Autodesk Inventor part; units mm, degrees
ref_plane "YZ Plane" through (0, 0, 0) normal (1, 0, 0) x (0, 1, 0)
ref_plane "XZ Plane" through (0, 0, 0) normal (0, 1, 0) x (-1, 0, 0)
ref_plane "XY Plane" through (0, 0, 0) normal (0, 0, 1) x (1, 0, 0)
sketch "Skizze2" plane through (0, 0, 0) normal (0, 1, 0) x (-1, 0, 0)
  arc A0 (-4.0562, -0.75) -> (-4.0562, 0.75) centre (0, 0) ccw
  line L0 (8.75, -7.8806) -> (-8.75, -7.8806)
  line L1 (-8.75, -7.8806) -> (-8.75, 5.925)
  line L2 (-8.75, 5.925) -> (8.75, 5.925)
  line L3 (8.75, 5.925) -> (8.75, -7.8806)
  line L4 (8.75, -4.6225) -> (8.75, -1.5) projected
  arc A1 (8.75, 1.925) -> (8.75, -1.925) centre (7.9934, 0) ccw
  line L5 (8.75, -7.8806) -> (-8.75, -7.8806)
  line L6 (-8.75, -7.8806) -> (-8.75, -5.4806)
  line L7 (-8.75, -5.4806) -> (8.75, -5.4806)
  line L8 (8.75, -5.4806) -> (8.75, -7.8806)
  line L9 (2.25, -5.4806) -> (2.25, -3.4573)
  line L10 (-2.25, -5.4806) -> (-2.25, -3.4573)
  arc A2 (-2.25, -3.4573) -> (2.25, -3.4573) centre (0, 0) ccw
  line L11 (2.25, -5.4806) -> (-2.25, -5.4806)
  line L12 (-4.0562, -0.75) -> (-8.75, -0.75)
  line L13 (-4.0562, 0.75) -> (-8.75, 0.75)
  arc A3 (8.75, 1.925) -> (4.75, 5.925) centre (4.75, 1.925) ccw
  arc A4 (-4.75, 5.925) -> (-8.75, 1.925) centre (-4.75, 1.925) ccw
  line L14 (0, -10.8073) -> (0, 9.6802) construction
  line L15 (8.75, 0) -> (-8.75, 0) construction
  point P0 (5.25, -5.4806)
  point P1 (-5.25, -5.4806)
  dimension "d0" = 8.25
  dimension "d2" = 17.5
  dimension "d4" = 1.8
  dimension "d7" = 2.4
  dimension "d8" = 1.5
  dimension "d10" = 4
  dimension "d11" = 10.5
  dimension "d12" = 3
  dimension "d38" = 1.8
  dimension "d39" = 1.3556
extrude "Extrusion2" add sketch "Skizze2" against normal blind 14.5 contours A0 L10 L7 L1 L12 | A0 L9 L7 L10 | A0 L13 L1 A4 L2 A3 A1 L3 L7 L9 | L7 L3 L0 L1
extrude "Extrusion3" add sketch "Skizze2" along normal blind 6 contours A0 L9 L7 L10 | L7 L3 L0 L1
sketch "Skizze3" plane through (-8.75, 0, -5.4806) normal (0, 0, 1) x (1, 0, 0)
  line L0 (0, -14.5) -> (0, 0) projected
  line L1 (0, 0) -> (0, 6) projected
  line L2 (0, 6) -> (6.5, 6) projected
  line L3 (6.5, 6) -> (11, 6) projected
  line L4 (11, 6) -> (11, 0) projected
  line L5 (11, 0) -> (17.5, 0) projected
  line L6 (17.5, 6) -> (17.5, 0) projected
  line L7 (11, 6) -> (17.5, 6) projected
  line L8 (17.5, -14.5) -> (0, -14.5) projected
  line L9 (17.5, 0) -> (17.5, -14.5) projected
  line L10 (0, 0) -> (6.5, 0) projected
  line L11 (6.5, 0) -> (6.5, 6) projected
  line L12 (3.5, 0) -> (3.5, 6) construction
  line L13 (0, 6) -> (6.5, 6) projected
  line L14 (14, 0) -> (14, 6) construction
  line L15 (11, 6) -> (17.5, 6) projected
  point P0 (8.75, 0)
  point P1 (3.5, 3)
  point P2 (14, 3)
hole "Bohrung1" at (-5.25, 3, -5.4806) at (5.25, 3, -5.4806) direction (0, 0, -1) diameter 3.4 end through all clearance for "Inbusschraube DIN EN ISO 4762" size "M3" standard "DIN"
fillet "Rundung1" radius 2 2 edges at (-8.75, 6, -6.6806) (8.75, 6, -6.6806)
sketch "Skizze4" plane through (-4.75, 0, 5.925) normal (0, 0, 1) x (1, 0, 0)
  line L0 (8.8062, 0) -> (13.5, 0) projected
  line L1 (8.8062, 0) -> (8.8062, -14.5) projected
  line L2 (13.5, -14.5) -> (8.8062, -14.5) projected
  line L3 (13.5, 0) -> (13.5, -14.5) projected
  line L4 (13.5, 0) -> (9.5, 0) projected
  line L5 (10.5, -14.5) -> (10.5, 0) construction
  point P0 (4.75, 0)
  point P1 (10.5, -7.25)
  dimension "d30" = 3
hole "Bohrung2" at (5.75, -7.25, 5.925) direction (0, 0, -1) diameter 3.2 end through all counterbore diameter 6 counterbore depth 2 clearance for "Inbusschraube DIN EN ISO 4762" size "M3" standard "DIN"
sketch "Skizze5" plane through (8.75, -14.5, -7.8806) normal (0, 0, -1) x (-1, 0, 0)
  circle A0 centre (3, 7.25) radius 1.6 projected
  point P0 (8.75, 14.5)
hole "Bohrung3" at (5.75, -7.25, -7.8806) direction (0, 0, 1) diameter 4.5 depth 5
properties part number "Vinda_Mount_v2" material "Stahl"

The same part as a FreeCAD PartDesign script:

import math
import FreeCAD as App
import Part
import Sketcher

V = App.Vector
Q = App.Units.Quantity


def edges_at(feature, points):
    """Names of the edges that pass closest to the given points."""
    edges = feature.Shape.Edges
    near = lambda p: min(range(len(edges)), key=lambda i: edges[i].distToShape(Part.Vertex(*p))[0])
    return sorted({f"Edge{near(p) + 1}" for p in points})

doc = App.newDocument("Part")
body = doc.addObject("PartDesign::Body", "Body")

# Sketch on XZ plane
sketch1 = doc.addObject("Sketcher::SketchObject", "Sketch")
body.addObject(sketch1)
sketch1.AttachmentSupport = (doc.XZ_Plane, [""])
sketch1.MapMode = "FlatFace"
sketch1.addGeometry(Part.LineSegment(V(4.1, -0.8, 0), V(8.8, -0.8, 0)), False)
sketch1.addGeometry(Part.LineSegment(V(8.8, -0.8, 0), V(8.8, -7.9, 0)), False)
sketch1.addGeometry(Part.LineSegment(V(8.8, -7.9, 0), V(-8.8, -7.9, 0)), False)
sketch1.addGeometry(Part.LineSegment(V(-8.8, -7.9, 0), V(-8.8, -1.9, 0)), False)
sketch1.addGeometry(Part.ArcOfCircle(Part.Circle(V(-8, 0, 0), V(0, 0, 1), 2.1), math.radians(-111), math.radians(111)), False)
sketch1.addGeometry(Part.ArcOfCircle(Part.Circle(V(-4.8, 1.9, 0), V(0, 0, 1), 4), math.radians(90), math.radians(180)), False)
sketch1.addGeometry(Part.LineSegment(V(-4.8, 5.9, 0), V(4.8, 5.9, 0)), False)
sketch1.addGeometry(Part.ArcOfCircle(Part.Circle(V(4.8, 1.9, 0), V(0, 0, 1), 4), math.radians(0), math.radians(90)), False)
sketch1.addGeometry(Part.LineSegment(V(8.8, 1.9, 0), V(8.8, 0.8, 0)), False)
sketch1.addGeometry(Part.LineSegment(V(8.8, 0.8, 0), V(4.1, 0.8, 0)), False)
sketch1.addGeometry(Part.ArcOfCircle(Part.Circle(V(0, 0, 0), V(0, 0, 1), 4.1), math.radians(10), math.radians(350)), False)
sketch1.addConstraint(Sketcher.Constraint("Coincident", 0, 2, 1, 1))
sketch1.addConstraint(Sketcher.Constraint("Coincident", 1, 2, 2, 1))
sketch1.addConstraint(Sketcher.Constraint("Coincident", 2, 2, 3, 1))
sketch1.addConstraint(Sketcher.Constraint("Coincident", 3, 2, 4, 1))
sketch1.addConstraint(Sketcher.Constraint("Coincident", 4, 2, 5, 2))
sketch1.addConstraint(Sketcher.Constraint("Tangent", 5, 1, 6, 1))
sketch1.addConstraint(Sketcher.Constraint("Tangent", 6, 2, 7, 2))
sketch1.addConstraint(Sketcher.Constraint("Tangent", 7, 1, 8, 1))
sketch1.addConstraint(Sketcher.Constraint("Coincident", 8, 2, 9, 1))
sketch1.addConstraint(Sketcher.Constraint("Coincident", 9, 2, 10, 1))
sketch1.addConstraint(Sketcher.Constraint("Coincident", 10, 2, 0, 1))
sketch1.addConstraint(Sketcher.Constraint("Horizontal", 0))
sketch1.addConstraint(Sketcher.Constraint("Vertical", 1))
sketch1.addConstraint(Sketcher.Constraint("Horizontal", 2))
sketch1.addConstraint(Sketcher.Constraint("Vertical", 3))
sketch1.addConstraint(Sketcher.Constraint("Horizontal", 6))
sketch1.addConstraint(Sketcher.Constraint("Vertical", 8))
sketch1.addConstraint(Sketcher.Constraint("Horizontal", 9))
sketch1.addConstraint(Sketcher.Constraint("Coincident", 10, 3, -1, 1))
sketch1.addConstraint(Sketcher.Constraint("Equal", 5, 7))
sketch1.addConstraint(Sketcher.Constraint("Symmetric", 3, 2, 7, 1, -1, 1))
sketch1.addConstraint(Sketcher.Constraint("Symmetric", 4, 2, 7, 1, -2))
sketch1.addConstraint(Sketcher.Constraint("Symmetric", 0, 2, 8, 2, -1))
sketch1.addConstraint(Sketcher.Constraint("Radius", 5, Q("4 mm")))
sketch1.addConstraint(Sketcher.Constraint("DistanceX", 2, 2, 2, 1, Q("17.5 mm")))
sketch1.addConstraint(Sketcher.Constraint("Radius", 10, Q("4.125 mm")))
sketch1.addConstraint(Sketcher.Constraint("DistanceY", 0, 2, 8, 2, Q("1.5 mm")))
sketch1.addConstraint(Sketcher.Constraint("Radius", 4, Q("2.0683 mm")))
sketch1.addConstraint(Sketcher.Constraint("DistanceY", 8, 2, 8, 1, Q("1.175 mm")))
sketch1.addConstraint(Sketcher.Constraint("DistanceY", 1, 2, 1, 1, Q("7.1306 mm")))
pad1 = doc.addObject("PartDesign::Pad", "Pad")
body.addObject(pad1)
pad1.Profile = sketch1
pad1.Length = 14.5

# Sketch on XZ plane
sketch2 = doc.addObject("Sketcher::SketchObject", "Sketch001")
body.addObject(sketch2)
sketch2.AttachmentSupport = (doc.XZ_Plane, [""])
sketch2.MapMode = "FlatFace"
sketch2.addGeometry(Part.ArcOfCircle(Part.Circle(V(0, 0, 0), V(0, 0, 1), 4.1), math.radians(-123), math.radians(-57)), False)
sketch2.addGeometry(Part.LineSegment(V(2.2, -3.5, 0), V(2.2, -5.5, 0)), False)
sketch2.addGeometry(Part.LineSegment(V(2.2, -5.5, 0), V(8.8, -5.5, 0)), False)
sketch2.addGeometry(Part.LineSegment(V(8.8, -5.5, 0), V(8.8, -7.9, 0)), False)
sketch2.addGeometry(Part.LineSegment(V(8.8, -7.9, 0), V(-8.8, -7.9, 0)), False)
sketch2.addGeometry(Part.LineSegment(V(-8.8, -7.9, 0), V(-8.8, -5.5, 0)), False)
sketch2.addGeometry(Part.LineSegment(V(-8.8, -5.5, 0), V(-2.2, -5.5, 0)), False)
sketch2.addGeometry(Part.LineSegment(V(-2.2, -5.5, 0), V(-2.2, -3.5, 0)), False)
sketch2.addConstraint(Sketcher.Constraint("Coincident", 0, 2, 1, 1))
sketch2.addConstraint(Sketcher.Constraint("Coincident", 1, 2, 2, 1))
sketch2.addConstraint(Sketcher.Constraint("Coincident", 2, 2, 3, 1))
sketch2.addConstraint(Sketcher.Constraint("Coincident", 3, 2, 4, 1))
sketch2.addConstraint(Sketcher.Constraint("Coincident", 4, 2, 5, 1))
sketch2.addConstraint(Sketcher.Constraint("Coincident", 5, 2, 6, 1))
sketch2.addConstraint(Sketcher.Constraint("Coincident", 6, 2, 7, 1))
sketch2.addConstraint(Sketcher.Constraint("Coincident", 7, 2, 0, 1))
sketch2.addConstraint(Sketcher.Constraint("Vertical", 1))
sketch2.addConstraint(Sketcher.Constraint("Horizontal", 2))
sketch2.addConstraint(Sketcher.Constraint("Vertical", 3))
sketch2.addConstraint(Sketcher.Constraint("Horizontal", 4))
sketch2.addConstraint(Sketcher.Constraint("Vertical", 5))
sketch2.addConstraint(Sketcher.Constraint("Horizontal", 6))
sketch2.addConstraint(Sketcher.Constraint("Vertical", 7))
sketch2.addConstraint(Sketcher.Constraint("Coincident", 0, 3, -1, 1))
sketch2.addConstraint(Sketcher.Constraint("Symmetric", 2, 2, 5, 2, -2))
sketch2.addConstraint(Sketcher.Constraint("Horizontal", 0, 2, 7, 2))
sketch2.addConstraint(Sketcher.Constraint("DistanceX", 4, 2, 4, 1, Q("17.5 mm")))
sketch2.addConstraint(Sketcher.Constraint("DistanceY", 3, 2, 3, 1, Q("2.4 mm")))
sketch2.addConstraint(Sketcher.Constraint("Radius", 0, Q("4.125 mm")))
sketch2.addConstraint(Sketcher.Constraint("DistanceX", 2, 1, 2, 2, Q("6.5 mm")))
sketch2.addConstraint(Sketcher.Constraint("DistanceY", 1, 2, 1, 1, Q("2.0233 mm")))
pad2 = doc.addObject("PartDesign::Pad", "Pad001")
body.addObject(pad2)
pad2.Profile = sketch2
pad2.Length = 6
pad2.Reversed = True

# Sketch on XY plane
sketch3 = doc.addObject("Sketcher::SketchObject", "Sketch002")
body.addObject(sketch3)
sketch3.AttachmentSupport = (doc.XY_Plane, [""])
sketch3.MapMode = "FlatFace"
sketch3.AttachmentOffset = App.Placement(V(0, 0, -5.4806), App.Rotation())
sketch3.addGeometry(Part.Circle(V(-5.2, 3, 0), V(0, 0, 1), 1.7), False)
sketch3.addGeometry(Part.Circle(V(5.2, 3, 0), V(0, 0, 1), 1.7), False)
sketch3.addConstraint(Sketcher.Constraint("Equal", 0, 1))
sketch3.addConstraint(Sketcher.Constraint("Symmetric", 0, 3, 1, 3, -2))
sketch3.addConstraint(Sketcher.Constraint("Diameter", 0, Q("3.4 mm")))
sketch3.addConstraint(Sketcher.Constraint("DistanceY", -1, 1, 0, 3, Q("3 mm")))
sketch3.addConstraint(Sketcher.Constraint("DistanceX", 0, 3, 1, 3, Q("10.5 mm")))
doc.recompute()
hole = doc.addObject("PartDesign::Hole", "Hole")
body.addObject(hole)
hole.Profile = sketch3
hole.ThreadType = "None"
hole.Diameter = 3.4
hole.DepthType = "ThroughAll"
doc.recompute()

fillet = doc.addObject("PartDesign::Fillet", "Fillet")
body.addObject(fillet)
fillet.Base = (hole, edges_at(hole, [(-8.75, 6, -6.681), (8.75, 6, -6.681)]))
fillet.Radius = 2

# Sketch on XY plane
sketch4 = doc.addObject("Sketcher::SketchObject", "Sketch003")
body.addObject(sketch4)
sketch4.AttachmentSupport = (doc.XY_Plane, [""])
sketch4.MapMode = "FlatFace"
sketch4.AttachmentOffset = App.Placement(V(0, 0, 5.925), App.Rotation())
sketch4.addGeometry(Part.Circle(V(5.8, -7.2, 0), V(0, 0, 1), 1.6), False)
sketch4.addConstraint(Sketcher.Constraint("Diameter", 0, Q("3.2 mm")))
sketch4.addConstraint(Sketcher.Constraint("DistanceX", -1, 1, 0, 3, Q("5.75 mm")))
sketch4.addConstraint(Sketcher.Constraint("DistanceY", 0, 3, -1, 1, Q("7.25 mm")))
doc.recompute()
hole2 = doc.addObject("PartDesign::Hole", "Hole001")
body.addObject(hole2)
hole2.Profile = sketch4
hole2.ThreadType = "None"
hole2.Diameter = 3.2
hole2.DepthType = "ThroughAll"
hole2.HoleCutType = "Counterbore"
hole2.HoleCutDiameter = 6
hole2.HoleCutDepth = 2

# Sketch on XY plane
sketch5 = doc.addObject("Sketcher::SketchObject", "Sketch004")
body.addObject(sketch5)
sketch5.AttachmentSupport = (doc.XY_Plane, [""])
sketch5.MapMode = "FlatFace"
sketch5.AttachmentOffset = App.Placement(V(0, 0, -7.8806), App.Rotation())
sketch5.addGeometry(Part.Circle(V(5.8, -7.2, 0), V(0, 0, 1), 2.2), False)
sketch5.addConstraint(Sketcher.Constraint("Diameter", 0, Q("4.5 mm")))
sketch5.addConstraint(Sketcher.Constraint("DistanceX", -1, 1, 0, 3, Q("5.75 mm")))
sketch5.addConstraint(Sketcher.Constraint("DistanceY", 0, 3, -1, 1, Q("7.25 mm")))
doc.recompute()
hole3 = doc.addObject("PartDesign::Hole", "Hole002")
body.addObject(hole3)
hole3.Profile = sketch5
hole3.ThreadType = "None"
hole3.Diameter = 4.5
hole3.DepthType = "Dimension"
hole3.Depth = 5
hole3.DrillPoint = "Flat"
hole3.Reversed = True

doc.recompute()
